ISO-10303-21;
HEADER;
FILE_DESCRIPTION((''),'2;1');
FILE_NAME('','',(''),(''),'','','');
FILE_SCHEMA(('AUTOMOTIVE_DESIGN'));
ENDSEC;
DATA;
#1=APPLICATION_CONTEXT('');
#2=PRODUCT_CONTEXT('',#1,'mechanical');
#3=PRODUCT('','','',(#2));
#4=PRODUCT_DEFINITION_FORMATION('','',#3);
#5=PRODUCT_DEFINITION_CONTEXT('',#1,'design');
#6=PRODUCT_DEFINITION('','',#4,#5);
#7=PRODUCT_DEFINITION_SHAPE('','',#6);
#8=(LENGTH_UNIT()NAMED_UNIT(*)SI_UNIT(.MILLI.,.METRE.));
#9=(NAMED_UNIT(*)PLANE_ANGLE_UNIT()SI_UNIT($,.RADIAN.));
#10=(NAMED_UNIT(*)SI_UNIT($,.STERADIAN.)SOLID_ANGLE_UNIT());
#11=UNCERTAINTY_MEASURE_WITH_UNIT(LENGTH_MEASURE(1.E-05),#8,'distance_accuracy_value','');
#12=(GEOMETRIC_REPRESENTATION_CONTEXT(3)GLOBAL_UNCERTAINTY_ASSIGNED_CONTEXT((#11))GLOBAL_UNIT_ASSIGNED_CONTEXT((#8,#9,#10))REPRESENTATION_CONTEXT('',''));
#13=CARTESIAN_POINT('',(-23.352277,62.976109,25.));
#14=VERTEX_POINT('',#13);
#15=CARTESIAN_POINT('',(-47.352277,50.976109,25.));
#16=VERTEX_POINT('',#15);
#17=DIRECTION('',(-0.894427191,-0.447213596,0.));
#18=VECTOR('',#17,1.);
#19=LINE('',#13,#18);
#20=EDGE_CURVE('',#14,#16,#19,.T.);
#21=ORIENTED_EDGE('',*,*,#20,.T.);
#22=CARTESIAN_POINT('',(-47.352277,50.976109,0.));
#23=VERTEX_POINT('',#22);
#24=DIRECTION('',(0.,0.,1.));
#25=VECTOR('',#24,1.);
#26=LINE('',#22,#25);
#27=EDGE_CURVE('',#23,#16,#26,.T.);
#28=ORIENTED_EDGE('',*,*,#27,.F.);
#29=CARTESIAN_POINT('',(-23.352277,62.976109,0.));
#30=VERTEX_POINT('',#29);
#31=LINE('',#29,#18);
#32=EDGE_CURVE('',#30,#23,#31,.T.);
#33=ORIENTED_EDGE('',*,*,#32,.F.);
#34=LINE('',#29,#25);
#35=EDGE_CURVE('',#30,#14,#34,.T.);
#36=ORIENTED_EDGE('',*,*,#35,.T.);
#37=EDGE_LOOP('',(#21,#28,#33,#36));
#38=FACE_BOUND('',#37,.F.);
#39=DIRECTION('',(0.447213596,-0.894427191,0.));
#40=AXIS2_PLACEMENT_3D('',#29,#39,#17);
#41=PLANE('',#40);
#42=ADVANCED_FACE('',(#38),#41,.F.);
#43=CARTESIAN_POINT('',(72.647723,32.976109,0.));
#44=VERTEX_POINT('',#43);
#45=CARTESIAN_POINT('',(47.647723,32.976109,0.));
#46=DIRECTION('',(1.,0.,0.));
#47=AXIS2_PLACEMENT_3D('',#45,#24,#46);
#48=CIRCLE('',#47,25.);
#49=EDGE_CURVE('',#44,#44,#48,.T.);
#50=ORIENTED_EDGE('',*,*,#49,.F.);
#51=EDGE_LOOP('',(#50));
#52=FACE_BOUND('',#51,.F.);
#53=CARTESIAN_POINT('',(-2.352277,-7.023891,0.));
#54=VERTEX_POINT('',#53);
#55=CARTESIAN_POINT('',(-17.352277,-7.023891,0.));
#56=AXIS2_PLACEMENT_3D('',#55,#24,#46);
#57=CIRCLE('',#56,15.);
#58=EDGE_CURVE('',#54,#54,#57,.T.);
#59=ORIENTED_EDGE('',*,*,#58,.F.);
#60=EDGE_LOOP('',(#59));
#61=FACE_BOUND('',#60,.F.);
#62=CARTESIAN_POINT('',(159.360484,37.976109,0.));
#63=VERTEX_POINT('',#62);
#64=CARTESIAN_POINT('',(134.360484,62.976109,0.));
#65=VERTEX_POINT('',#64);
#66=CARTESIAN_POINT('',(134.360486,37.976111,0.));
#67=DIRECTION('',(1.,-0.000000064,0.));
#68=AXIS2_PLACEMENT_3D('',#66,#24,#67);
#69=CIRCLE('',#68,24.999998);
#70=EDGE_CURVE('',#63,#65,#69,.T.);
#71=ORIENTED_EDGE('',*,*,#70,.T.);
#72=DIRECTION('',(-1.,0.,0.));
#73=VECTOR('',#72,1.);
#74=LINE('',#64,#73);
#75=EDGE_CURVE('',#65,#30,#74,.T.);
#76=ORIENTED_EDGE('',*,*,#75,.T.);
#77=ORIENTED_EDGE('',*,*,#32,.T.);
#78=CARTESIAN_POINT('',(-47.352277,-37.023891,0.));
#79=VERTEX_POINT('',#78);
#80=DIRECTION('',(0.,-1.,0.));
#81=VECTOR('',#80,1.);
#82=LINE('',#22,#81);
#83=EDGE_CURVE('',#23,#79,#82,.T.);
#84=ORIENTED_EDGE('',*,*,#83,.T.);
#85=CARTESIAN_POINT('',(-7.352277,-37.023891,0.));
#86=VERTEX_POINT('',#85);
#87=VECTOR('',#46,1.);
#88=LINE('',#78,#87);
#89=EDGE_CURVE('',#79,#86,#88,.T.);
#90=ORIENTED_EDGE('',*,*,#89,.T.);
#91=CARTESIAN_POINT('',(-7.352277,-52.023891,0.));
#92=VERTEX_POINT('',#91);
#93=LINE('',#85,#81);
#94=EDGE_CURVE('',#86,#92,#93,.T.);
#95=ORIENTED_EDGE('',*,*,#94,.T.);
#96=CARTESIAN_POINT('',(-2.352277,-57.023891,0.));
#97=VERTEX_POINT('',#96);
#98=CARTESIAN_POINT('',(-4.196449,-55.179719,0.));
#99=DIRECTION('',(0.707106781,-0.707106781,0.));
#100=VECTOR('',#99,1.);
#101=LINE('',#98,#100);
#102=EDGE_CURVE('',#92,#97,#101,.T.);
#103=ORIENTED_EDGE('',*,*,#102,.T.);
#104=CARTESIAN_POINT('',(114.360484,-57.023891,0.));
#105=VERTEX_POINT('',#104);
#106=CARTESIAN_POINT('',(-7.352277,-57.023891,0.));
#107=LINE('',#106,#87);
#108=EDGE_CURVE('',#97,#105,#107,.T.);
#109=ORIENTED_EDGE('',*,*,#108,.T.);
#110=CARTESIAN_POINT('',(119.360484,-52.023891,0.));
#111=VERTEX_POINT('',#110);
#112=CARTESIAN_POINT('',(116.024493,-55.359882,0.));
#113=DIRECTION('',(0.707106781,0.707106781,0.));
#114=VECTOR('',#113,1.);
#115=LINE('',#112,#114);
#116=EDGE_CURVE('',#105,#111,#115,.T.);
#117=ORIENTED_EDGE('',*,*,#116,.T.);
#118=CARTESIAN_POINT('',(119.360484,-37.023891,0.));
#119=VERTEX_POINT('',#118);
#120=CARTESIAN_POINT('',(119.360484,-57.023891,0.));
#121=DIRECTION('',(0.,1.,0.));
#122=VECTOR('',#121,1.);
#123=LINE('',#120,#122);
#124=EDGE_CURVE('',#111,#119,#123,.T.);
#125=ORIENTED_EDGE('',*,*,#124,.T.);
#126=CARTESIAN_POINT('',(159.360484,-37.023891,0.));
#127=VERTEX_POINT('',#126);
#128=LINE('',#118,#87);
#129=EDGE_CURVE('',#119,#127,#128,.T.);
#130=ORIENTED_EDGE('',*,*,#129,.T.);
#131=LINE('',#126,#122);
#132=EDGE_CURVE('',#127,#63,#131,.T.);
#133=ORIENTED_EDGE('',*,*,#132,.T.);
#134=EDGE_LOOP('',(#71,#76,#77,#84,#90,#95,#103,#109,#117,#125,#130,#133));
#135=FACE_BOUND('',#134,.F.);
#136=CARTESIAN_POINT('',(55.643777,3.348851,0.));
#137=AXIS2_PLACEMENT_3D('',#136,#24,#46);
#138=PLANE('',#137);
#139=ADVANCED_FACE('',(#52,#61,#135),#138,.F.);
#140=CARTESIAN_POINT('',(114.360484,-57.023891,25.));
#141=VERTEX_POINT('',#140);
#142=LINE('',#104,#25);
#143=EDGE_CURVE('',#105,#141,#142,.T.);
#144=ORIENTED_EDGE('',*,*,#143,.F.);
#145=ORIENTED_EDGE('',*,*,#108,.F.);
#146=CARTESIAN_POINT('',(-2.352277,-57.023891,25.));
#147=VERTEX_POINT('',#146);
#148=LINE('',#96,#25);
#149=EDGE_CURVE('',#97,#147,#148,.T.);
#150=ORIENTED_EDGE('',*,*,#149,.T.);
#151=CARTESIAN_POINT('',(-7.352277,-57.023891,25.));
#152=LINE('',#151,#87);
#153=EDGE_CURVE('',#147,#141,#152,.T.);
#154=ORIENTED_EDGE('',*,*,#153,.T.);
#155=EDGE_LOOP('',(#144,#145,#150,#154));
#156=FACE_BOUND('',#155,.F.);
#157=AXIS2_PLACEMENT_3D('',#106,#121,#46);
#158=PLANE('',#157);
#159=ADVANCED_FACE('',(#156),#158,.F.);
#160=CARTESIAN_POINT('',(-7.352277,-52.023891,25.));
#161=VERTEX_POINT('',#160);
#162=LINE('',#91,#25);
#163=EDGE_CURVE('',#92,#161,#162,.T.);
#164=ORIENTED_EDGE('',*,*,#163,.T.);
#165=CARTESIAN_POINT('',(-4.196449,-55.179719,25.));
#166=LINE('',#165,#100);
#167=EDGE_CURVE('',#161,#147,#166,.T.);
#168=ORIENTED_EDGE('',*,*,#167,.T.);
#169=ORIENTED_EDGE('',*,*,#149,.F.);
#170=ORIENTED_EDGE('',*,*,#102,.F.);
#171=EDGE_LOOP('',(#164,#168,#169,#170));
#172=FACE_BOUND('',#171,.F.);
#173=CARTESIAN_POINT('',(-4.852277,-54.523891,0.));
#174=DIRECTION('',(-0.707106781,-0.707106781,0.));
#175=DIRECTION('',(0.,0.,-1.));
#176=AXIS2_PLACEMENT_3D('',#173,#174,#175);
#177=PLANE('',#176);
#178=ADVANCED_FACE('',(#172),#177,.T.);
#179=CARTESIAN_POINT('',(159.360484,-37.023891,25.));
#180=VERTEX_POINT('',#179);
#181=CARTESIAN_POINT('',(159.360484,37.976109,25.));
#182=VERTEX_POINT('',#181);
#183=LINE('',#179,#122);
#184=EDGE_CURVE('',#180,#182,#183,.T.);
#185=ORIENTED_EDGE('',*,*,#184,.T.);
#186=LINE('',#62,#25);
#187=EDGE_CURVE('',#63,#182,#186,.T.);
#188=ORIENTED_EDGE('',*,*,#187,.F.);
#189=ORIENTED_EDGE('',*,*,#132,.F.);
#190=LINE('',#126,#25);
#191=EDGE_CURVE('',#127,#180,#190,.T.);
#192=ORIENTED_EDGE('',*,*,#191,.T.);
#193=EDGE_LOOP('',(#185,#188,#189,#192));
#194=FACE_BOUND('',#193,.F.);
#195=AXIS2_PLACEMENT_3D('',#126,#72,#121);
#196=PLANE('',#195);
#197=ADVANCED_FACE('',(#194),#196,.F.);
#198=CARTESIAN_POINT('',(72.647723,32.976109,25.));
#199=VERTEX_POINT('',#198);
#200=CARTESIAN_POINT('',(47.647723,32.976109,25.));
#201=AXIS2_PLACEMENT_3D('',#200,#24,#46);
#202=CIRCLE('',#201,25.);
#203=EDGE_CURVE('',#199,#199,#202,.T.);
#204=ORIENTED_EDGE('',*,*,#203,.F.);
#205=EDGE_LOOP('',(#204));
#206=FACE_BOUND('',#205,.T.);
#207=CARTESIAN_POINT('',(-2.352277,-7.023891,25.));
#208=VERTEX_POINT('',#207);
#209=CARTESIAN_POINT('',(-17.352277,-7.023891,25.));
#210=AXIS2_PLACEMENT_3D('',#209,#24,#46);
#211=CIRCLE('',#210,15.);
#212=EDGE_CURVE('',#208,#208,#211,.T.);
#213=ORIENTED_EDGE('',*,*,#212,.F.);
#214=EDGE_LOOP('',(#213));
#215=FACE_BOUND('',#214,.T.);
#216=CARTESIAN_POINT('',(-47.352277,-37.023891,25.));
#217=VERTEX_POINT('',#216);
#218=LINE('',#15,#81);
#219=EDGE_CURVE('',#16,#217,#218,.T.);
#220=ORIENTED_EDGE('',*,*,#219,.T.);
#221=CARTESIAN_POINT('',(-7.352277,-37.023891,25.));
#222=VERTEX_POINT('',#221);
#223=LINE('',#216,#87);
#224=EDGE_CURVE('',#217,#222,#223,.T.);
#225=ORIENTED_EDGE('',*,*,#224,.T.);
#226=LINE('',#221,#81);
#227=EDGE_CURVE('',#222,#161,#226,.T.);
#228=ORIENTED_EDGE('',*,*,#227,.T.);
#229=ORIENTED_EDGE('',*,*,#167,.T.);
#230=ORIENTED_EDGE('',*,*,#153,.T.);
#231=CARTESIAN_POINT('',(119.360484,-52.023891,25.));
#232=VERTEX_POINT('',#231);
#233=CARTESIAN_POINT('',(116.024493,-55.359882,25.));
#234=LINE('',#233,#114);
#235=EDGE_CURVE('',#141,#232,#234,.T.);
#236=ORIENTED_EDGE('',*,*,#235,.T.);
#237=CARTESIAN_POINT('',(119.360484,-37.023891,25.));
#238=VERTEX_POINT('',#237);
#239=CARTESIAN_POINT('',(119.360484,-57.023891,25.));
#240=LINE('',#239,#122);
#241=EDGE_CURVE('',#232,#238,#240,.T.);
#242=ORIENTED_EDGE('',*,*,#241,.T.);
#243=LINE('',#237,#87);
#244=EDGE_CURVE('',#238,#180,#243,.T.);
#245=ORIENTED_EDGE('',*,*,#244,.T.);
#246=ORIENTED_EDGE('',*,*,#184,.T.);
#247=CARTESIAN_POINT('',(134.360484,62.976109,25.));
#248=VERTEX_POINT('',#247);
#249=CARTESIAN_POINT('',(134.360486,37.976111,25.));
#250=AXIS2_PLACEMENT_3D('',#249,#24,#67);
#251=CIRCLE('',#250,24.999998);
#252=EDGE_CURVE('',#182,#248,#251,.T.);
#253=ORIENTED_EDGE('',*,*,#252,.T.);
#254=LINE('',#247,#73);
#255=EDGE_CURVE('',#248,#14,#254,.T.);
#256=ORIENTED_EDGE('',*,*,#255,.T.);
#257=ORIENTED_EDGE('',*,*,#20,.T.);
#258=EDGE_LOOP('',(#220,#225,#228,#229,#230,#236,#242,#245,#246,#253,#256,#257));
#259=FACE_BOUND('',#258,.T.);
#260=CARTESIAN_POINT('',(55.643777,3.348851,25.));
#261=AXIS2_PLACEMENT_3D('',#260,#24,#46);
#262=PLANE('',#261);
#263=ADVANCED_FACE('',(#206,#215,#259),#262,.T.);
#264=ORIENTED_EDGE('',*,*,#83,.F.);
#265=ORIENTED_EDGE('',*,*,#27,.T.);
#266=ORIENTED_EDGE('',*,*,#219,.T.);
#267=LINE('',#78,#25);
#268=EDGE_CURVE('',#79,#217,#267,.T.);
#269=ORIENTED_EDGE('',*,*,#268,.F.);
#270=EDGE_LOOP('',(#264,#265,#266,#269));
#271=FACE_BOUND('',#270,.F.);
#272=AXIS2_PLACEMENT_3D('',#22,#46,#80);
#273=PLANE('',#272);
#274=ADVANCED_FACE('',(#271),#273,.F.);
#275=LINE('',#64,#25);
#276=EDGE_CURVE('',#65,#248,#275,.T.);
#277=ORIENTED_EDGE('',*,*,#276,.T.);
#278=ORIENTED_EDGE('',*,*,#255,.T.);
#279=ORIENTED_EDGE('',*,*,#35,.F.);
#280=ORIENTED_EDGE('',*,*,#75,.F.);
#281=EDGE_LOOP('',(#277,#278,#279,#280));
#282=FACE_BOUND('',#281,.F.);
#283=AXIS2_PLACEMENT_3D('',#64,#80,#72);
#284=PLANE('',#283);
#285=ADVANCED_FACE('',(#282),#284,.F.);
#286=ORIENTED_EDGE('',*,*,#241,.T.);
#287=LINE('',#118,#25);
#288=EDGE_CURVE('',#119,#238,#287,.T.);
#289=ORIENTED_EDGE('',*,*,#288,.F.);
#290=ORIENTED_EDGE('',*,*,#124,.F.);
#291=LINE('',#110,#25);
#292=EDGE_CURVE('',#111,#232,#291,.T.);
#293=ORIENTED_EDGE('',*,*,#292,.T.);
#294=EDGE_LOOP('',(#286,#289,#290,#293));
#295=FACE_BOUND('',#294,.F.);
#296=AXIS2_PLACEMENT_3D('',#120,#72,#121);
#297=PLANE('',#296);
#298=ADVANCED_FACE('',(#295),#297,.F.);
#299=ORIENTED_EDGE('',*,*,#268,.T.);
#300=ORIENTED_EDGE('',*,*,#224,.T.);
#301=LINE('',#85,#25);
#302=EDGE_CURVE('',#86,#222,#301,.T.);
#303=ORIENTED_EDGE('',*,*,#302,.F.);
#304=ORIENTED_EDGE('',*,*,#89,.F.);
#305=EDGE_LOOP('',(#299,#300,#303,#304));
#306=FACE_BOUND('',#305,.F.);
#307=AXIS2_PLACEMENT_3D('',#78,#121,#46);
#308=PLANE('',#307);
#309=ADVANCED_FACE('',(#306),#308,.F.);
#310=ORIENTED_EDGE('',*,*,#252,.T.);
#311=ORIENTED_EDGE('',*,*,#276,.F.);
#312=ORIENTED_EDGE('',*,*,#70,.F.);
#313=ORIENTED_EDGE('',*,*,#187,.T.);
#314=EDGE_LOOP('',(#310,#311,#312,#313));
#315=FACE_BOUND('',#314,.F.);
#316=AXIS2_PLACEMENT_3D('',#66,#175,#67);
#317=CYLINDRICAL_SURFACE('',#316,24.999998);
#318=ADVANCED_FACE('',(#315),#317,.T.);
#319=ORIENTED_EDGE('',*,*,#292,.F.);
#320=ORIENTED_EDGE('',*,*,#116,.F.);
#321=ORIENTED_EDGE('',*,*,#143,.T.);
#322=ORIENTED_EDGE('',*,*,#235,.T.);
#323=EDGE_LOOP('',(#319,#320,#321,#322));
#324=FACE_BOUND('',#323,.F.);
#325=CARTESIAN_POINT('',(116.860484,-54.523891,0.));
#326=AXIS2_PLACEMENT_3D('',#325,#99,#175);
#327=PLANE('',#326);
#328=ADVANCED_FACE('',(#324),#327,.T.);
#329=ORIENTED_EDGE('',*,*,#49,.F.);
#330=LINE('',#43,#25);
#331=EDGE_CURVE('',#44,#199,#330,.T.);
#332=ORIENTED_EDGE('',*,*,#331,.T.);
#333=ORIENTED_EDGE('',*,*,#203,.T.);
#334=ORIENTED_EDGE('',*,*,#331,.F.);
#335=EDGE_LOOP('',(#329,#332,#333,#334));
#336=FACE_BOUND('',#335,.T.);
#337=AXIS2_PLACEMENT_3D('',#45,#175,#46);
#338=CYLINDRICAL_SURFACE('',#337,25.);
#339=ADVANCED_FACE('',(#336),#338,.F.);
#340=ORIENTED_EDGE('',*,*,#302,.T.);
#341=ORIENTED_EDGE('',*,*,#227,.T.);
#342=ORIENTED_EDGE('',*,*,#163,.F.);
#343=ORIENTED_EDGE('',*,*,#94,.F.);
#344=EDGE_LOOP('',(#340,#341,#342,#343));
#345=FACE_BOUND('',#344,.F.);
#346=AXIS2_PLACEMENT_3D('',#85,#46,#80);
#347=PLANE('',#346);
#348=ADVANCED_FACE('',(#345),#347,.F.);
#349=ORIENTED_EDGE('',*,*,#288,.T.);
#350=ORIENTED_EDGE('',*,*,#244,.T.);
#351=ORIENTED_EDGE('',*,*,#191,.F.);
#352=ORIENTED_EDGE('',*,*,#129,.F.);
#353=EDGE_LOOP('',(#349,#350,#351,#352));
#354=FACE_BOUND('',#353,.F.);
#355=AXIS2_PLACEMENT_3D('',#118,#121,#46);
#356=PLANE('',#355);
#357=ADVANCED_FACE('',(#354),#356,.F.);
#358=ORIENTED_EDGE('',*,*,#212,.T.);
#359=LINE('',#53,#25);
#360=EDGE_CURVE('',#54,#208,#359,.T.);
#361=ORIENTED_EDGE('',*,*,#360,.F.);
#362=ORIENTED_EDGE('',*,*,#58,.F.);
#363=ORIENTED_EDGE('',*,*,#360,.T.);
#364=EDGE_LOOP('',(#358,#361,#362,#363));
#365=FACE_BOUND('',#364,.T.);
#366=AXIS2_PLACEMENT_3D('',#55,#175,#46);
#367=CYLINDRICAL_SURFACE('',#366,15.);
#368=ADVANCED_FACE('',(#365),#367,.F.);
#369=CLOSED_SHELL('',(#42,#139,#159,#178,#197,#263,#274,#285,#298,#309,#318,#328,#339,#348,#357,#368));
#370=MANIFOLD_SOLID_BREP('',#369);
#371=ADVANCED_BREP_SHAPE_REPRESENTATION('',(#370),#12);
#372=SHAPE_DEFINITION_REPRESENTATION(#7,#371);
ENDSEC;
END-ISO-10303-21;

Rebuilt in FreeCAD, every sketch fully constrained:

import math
import FreeCAD as App
import Part
import Sketcher
from FreeCAD import Vector
Q = App.Units.Quantity


def edges_at(feature, points):
    """Names of the edges that pass closest to the given points."""
    edges = feature.Shape.Edges
    near = lambda p: min(range(len(edges)), key=lambda i: edges[i].distToShape(Part.Vertex(*p))[0])
    return sorted({f"Edge{near(p) + 1}" for p in points})

doc = App.newDocument("Part")
body = doc.addObject("PartDesign::Body", "Body")

sketch1 = body.newObject("Sketcher::SketchObject", "Sketch")
sketch1.AttachmentSupport = (doc.getObject("XY_Plane"), [""])
sketch1.MapMode = "FlatFace"
sketch1.addGeometry([
    Part.LineSegment(Vector(-23.352277, 62.976109, 0), Vector(-47.352277, 50.976109, 0)),
    Part.LineSegment(Vector(-47.352277, 50.976109, 0), Vector(-47.352277, -37.023891, 0)),
    Part.LineSegment(Vector(-47.352277, -37.023891, 0), Vector(-7.352277, -37.023891, 0)),
    Part.LineSegment(Vector(-7.352277, -37.023891, 0), Vector(-7.352277, -57.023891, 0)),
    Part.LineSegment(Vector(-7.352277, -57.023891, 0), Vector(119.360484, -57.023891, 0)),
    Part.LineSegment(Vector(119.360484, -57.023891, 0), Vector(119.360484, -37.023891, 0)),
    Part.LineSegment(Vector(119.360484, -37.023891, 0), Vector(159.360484, -37.023891, 0)),
    Part.LineSegment(Vector(159.360484, -37.023891, 0), Vector(159.360484, 37.976109, 0)),
    Part.ArcOfCircle(Part.Circle(Vector(134.360486, 37.976111, 0), Vector(0, 0, 1), 24.999998), math.radians(-0.000004), math.radians(90.000004)),
    Part.LineSegment(Vector(134.360484, 62.976109, 0), Vector(-23.352277, 62.976109, 0)),
    Part.Circle(Vector(-17.352277, -7.023891, 0), Vector(0, 0, 1), 15),
    Part.Circle(Vector(47.647723, 32.976109, 0), Vector(0, 0, 1), 25),
], False)
sketch1.addConstraint([
    Sketcher.Constraint("Coincident", 0, 2, 1, 1),
    Sketcher.Constraint("Coincident", 1, 2, 2, 1),
    Sketcher.Constraint("Coincident", 2, 2, 3, 1),
    Sketcher.Constraint("Coincident", 3, 2, 4, 1),
    Sketcher.Constraint("Coincident", 4, 2, 5, 1),
    Sketcher.Constraint("Coincident", 5, 2, 6, 1),
    Sketcher.Constraint("Coincident", 6, 2, 7, 1),
    Sketcher.Constraint("Tangent", 7, 2, 8, 1),
    Sketcher.Constraint("Tangent", 8, 2, 9, 1),
    Sketcher.Constraint("Coincident", 9, 2, 0, 1),
    Sketcher.Constraint("Vertical", 1),
    Sketcher.Constraint("Horizontal", 2),
    Sketcher.Constraint("Vertical", 3),
    Sketcher.Constraint("Horizontal", 4),
    Sketcher.Constraint("Vertical", 5),
    Sketcher.Constraint("Horizontal", 6),
    Sketcher.Constraint("Vertical", 7),
    Sketcher.Constraint("Horizontal", 9),
    Sketcher.Constraint("Equal", 8, 11),
    Sketcher.Constraint("Horizontal", 2, 2, 5, 2),
    Sketcher.Constraint("Equal", 2, 6),
    Sketcher.Constraint("Diameter", 10, Q("30 mm")),
    Sketcher.Constraint("Diameter", 11, Q("50 mm")),
    Sketcher.Constraint("DistanceX", 2, 1, 2, 2, Q("40 mm")),
    Sketcher.Constraint("DistanceY", 1, 2, 1, 1, Q("88 mm")),
    Sketcher.Constraint("DistanceY", 3, 2, 3, 1, Q("20 mm")),
    Sketcher.Constraint("DistanceY", 7, 1, 7, 2, Q("75 mm")),
    Sketcher.Constraint("DistanceY", 10, 3, 8, 3, Q("45.000002 mm")),
    Sketcher.Constraint("DistanceX", 10, 3, 11, 3, Q("65 mm")),
    Sketcher.Constraint("DistanceY", 10, 3, 11, 3, Q("40 mm")),
    Sketcher.Constraint("DistanceX", 0, 2, 10, 3, Q("30 mm")),
    Sketcher.Constraint("DistanceX", 0, 2, 9, 2, Q("24 mm")),
    Sketcher.Constraint("DistanceX", 4, 1, 4, 2, Q("126.712761 mm")),
    Sketcher.Constraint("DistanceY", -1, 1, 8, 3, Q("37.976111 mm")),
    Sketcher.Constraint("DistanceX", -1, 1, 8, 3, Q("134.360486 mm")),
])
pad1 = body.newObject("PartDesign::Pad", "Pad")
pad1.Profile = sketch1
pad1.Length = 25
doc.recompute()

chamfer = body.newObject("PartDesign::Chamfer", "Chamfer")
chamfer.Base = (pad1, edges_at(pad1, [(-7.352, -57.024, 12.5), (119.36, -57.024, 12.5)]))
chamfer.Size = 5

doc.recompute()
